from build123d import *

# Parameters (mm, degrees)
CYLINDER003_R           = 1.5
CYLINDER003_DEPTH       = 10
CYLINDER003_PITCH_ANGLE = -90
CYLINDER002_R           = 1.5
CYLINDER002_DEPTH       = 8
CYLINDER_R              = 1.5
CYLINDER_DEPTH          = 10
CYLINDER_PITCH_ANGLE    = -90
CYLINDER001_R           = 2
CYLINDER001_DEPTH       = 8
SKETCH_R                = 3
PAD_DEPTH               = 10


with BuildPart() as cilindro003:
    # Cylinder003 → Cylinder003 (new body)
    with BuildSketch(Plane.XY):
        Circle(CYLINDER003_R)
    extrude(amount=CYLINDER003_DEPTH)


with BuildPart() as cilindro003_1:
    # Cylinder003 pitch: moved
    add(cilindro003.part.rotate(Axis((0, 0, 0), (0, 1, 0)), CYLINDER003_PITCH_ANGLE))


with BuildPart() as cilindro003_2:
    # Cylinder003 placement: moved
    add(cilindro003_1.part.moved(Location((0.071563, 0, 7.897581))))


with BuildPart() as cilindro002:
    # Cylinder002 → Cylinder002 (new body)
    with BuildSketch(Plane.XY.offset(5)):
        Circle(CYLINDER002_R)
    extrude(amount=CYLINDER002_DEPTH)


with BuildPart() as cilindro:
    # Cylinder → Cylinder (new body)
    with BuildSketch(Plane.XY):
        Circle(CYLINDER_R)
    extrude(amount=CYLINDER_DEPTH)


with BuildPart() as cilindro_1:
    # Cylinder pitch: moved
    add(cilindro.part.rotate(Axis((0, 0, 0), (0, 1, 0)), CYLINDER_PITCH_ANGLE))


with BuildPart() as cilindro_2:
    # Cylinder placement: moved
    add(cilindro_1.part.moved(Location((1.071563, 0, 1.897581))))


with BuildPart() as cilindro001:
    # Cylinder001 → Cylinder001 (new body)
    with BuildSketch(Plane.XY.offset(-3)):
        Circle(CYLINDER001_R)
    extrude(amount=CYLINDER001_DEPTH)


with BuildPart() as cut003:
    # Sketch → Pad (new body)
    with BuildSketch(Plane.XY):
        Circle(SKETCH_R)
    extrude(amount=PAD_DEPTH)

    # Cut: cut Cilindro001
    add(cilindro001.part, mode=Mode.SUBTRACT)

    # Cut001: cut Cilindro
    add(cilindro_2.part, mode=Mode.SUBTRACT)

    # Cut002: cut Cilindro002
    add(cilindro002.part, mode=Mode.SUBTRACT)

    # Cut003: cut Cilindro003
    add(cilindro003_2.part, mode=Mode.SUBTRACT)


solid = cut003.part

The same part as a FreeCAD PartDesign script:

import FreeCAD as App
import Part
import Sketcher
Q = App.Units.Quantity

doc = App.newDocument("Part")
body = doc.addObject("PartDesign::Body", "Body")

sketch1 = body.newObject("Sketcher::SketchObject", "Sketch")
sketch1.AttachmentSupport = (doc.getObject("XY_Plane"), [""])
sketch1.MapMode = "FlatFace"
sketch1.addGeometry(Part.Circle(App.Vector(0, 0, 0), App.Vector(0, 0, 1), 1.5), False)
sketch1.addConstraint([
    Sketcher.Constraint("Coincident", 0, 3, -1, 1),
    Sketcher.Constraint("Diameter", 0, Q("3 mm")),
])
pad1 = body.newObject("PartDesign::Pad", "Pad")
pad1.Profile = sketch1
pad1.Length = 10
body2 = doc.addObject("PartDesign::Body", "Body001")
doc.recompute()

body.Placement = App.Placement(App.Vector(0, 0, 0), App.Rotation(App.Vector(0, 1, 0), 270))
boolean = body2.newObject("PartDesign::Boolean", "Boolean")
boolean.Type = "Fuse"
boolean.addObjects([body])
body3 = doc.addObject("PartDesign::Body", "Body002")
doc.recompute()

body2.Placement = App.Placement(App.Vector(0.071563, 0, 7.897581), App.Rotation(App.Vector(0, 0, 1), 0))
boolean2 = body3.newObject("PartDesign::Boolean", "Boolean001")
boolean2.Type = "Fuse"
boolean2.addObjects([body2])
body4 = doc.addObject("PartDesign::Body", "Body003")

sketch2 = body4.newObject("Sketcher::SketchObject", "Sketch001")
sketch2.AttachmentSupport = (doc.getObject("XY_Plane003"), [""])
sketch2.MapMode = "FlatFace"
sketch2.AttachmentOffset = App.Placement(App.Vector(0, 0, 5), App.Rotation())
sketch2.addGeometry(Part.Circle(App.Vector(0, 0, 0), App.Vector(0, 0, 1), 1.5), False)
sketch2.addConstraint([
    Sketcher.Constraint("Coincident", 0, 3, -1, 1),
    Sketcher.Constraint("Diameter", 0, Q("3 mm")),
])
pad2 = body4.newObject("PartDesign::Pad", "Pad001")
pad2.Profile = sketch2
pad2.Length = 8
body5 = doc.addObject("PartDesign::Body", "Body004")

sketch3 = body5.newObject("Sketcher::SketchObject", "Sketch002")
sketch3.AttachmentSupport = (doc.getObject("XY_Plane004"), [""])
sketch3.MapMode = "FlatFace"
sketch3.addGeometry(Part.Circle(App.Vector(0, 0, 0), App.Vector(0, 0, 1), 1.5), False)
sketch3.addConstraint([
    Sketcher.Constraint("Coincident", 0, 3, -1, 1),
    Sketcher.Constraint("Diameter", 0, Q("3 mm")),
])
pad3 = body5.newObject("PartDesign::Pad", "Pad002")
pad3.Profile = sketch3
pad3.Length = 10
body6 = doc.addObject("PartDesign::Body", "Body005")
doc.recompute()

body5.Placement = App.Placement(App.Vector(0, 0, 0), App.Rotation(App.Vector(0, 1, 0), 270))
boolean3 = body6.newObject("PartDesign::Boolean", "Boolean002")
boolean3.Type = "Fuse"
boolean3.addObjects([body5])
body7 = doc.addObject("PartDesign::Body", "Body006")
doc.recompute()

body6.Placement = App.Placement(App.Vector(1.071563, 0, 1.897581), App.Rotation(App.Vector(0, 0, 1), 0))
boolean4 = body7.newObject("PartDesign::Boolean", "Boolean003")
boolean4.Type = "Fuse"
boolean4.addObjects([body6])
body8 = doc.addObject("PartDesign::Body", "Body007")

sketch4 = body8.newObject("Sketcher::SketchObject", "Sketch003")
sketch4.AttachmentSupport = (doc.getObject("XY_Plane007"), [""])
sketch4.MapMode = "FlatFace"
sketch4.AttachmentOffset = App.Placement(App.Vector(0, 0, -3), App.Rotation())
sketch4.addGeometry(Part.Circle(App.Vector(0, 0, 0), App.Vector(0, 0, 1), 2), False)
sketch4.addConstraint([
    Sketcher.Constraint("Coincident", 0, 3, -1, 1),
    Sketcher.Constraint("Diameter", 0, Q("4 mm")),
])
pad4 = body8.newObject("PartDesign::Pad", "Pad003")
pad4.Profile = sketch4
pad4.Length = 8
body9 = doc.addObject("PartDesign::Body", "Body008")

sketch5 = body9.newObject("Sketcher::SketchObject", "Sketch004")
sketch5.AttachmentSupport = (doc.getObject("XY_Plane008"), [""])
sketch5.MapMode = "FlatFace"
sketch5.addGeometry(Part.Circle(App.Vector(0, 0, 0), App.Vector(0, 0, 1), 3), False)
sketch5.addConstraint([
    Sketcher.Constraint("Coincident", 0, 3, -1, 1),
    Sketcher.Constraint("Diameter", 0, Q("6 mm")),
])
pad5 = body9.newObject("PartDesign::Pad", "Pad004")
pad5.Profile = sketch5
pad5.Length = 10
doc.recompute()

boolean5 = body9.newObject("PartDesign::Boolean", "Boolean004")
boolean5.Type = "Cut"
boolean5.addObjects([body8])
doc.recompute()

boolean6 = body9.newObject("PartDesign::Boolean", "Boolean005")
boolean6.Type = "Cut"
boolean6.addObjects([body7])
doc.recompute()

boolean7 = body9.newObject("PartDesign::Boolean", "Boolean006")
boolean7.Type = "Cut"
boolean7.addObjects([body4])
doc.recompute()

boolean8 = body9.newObject("PartDesign::Boolean", "Boolean007")
boolean8.Type = "Cut"
boolean8.addObjects([body3])

doc.recompute()
